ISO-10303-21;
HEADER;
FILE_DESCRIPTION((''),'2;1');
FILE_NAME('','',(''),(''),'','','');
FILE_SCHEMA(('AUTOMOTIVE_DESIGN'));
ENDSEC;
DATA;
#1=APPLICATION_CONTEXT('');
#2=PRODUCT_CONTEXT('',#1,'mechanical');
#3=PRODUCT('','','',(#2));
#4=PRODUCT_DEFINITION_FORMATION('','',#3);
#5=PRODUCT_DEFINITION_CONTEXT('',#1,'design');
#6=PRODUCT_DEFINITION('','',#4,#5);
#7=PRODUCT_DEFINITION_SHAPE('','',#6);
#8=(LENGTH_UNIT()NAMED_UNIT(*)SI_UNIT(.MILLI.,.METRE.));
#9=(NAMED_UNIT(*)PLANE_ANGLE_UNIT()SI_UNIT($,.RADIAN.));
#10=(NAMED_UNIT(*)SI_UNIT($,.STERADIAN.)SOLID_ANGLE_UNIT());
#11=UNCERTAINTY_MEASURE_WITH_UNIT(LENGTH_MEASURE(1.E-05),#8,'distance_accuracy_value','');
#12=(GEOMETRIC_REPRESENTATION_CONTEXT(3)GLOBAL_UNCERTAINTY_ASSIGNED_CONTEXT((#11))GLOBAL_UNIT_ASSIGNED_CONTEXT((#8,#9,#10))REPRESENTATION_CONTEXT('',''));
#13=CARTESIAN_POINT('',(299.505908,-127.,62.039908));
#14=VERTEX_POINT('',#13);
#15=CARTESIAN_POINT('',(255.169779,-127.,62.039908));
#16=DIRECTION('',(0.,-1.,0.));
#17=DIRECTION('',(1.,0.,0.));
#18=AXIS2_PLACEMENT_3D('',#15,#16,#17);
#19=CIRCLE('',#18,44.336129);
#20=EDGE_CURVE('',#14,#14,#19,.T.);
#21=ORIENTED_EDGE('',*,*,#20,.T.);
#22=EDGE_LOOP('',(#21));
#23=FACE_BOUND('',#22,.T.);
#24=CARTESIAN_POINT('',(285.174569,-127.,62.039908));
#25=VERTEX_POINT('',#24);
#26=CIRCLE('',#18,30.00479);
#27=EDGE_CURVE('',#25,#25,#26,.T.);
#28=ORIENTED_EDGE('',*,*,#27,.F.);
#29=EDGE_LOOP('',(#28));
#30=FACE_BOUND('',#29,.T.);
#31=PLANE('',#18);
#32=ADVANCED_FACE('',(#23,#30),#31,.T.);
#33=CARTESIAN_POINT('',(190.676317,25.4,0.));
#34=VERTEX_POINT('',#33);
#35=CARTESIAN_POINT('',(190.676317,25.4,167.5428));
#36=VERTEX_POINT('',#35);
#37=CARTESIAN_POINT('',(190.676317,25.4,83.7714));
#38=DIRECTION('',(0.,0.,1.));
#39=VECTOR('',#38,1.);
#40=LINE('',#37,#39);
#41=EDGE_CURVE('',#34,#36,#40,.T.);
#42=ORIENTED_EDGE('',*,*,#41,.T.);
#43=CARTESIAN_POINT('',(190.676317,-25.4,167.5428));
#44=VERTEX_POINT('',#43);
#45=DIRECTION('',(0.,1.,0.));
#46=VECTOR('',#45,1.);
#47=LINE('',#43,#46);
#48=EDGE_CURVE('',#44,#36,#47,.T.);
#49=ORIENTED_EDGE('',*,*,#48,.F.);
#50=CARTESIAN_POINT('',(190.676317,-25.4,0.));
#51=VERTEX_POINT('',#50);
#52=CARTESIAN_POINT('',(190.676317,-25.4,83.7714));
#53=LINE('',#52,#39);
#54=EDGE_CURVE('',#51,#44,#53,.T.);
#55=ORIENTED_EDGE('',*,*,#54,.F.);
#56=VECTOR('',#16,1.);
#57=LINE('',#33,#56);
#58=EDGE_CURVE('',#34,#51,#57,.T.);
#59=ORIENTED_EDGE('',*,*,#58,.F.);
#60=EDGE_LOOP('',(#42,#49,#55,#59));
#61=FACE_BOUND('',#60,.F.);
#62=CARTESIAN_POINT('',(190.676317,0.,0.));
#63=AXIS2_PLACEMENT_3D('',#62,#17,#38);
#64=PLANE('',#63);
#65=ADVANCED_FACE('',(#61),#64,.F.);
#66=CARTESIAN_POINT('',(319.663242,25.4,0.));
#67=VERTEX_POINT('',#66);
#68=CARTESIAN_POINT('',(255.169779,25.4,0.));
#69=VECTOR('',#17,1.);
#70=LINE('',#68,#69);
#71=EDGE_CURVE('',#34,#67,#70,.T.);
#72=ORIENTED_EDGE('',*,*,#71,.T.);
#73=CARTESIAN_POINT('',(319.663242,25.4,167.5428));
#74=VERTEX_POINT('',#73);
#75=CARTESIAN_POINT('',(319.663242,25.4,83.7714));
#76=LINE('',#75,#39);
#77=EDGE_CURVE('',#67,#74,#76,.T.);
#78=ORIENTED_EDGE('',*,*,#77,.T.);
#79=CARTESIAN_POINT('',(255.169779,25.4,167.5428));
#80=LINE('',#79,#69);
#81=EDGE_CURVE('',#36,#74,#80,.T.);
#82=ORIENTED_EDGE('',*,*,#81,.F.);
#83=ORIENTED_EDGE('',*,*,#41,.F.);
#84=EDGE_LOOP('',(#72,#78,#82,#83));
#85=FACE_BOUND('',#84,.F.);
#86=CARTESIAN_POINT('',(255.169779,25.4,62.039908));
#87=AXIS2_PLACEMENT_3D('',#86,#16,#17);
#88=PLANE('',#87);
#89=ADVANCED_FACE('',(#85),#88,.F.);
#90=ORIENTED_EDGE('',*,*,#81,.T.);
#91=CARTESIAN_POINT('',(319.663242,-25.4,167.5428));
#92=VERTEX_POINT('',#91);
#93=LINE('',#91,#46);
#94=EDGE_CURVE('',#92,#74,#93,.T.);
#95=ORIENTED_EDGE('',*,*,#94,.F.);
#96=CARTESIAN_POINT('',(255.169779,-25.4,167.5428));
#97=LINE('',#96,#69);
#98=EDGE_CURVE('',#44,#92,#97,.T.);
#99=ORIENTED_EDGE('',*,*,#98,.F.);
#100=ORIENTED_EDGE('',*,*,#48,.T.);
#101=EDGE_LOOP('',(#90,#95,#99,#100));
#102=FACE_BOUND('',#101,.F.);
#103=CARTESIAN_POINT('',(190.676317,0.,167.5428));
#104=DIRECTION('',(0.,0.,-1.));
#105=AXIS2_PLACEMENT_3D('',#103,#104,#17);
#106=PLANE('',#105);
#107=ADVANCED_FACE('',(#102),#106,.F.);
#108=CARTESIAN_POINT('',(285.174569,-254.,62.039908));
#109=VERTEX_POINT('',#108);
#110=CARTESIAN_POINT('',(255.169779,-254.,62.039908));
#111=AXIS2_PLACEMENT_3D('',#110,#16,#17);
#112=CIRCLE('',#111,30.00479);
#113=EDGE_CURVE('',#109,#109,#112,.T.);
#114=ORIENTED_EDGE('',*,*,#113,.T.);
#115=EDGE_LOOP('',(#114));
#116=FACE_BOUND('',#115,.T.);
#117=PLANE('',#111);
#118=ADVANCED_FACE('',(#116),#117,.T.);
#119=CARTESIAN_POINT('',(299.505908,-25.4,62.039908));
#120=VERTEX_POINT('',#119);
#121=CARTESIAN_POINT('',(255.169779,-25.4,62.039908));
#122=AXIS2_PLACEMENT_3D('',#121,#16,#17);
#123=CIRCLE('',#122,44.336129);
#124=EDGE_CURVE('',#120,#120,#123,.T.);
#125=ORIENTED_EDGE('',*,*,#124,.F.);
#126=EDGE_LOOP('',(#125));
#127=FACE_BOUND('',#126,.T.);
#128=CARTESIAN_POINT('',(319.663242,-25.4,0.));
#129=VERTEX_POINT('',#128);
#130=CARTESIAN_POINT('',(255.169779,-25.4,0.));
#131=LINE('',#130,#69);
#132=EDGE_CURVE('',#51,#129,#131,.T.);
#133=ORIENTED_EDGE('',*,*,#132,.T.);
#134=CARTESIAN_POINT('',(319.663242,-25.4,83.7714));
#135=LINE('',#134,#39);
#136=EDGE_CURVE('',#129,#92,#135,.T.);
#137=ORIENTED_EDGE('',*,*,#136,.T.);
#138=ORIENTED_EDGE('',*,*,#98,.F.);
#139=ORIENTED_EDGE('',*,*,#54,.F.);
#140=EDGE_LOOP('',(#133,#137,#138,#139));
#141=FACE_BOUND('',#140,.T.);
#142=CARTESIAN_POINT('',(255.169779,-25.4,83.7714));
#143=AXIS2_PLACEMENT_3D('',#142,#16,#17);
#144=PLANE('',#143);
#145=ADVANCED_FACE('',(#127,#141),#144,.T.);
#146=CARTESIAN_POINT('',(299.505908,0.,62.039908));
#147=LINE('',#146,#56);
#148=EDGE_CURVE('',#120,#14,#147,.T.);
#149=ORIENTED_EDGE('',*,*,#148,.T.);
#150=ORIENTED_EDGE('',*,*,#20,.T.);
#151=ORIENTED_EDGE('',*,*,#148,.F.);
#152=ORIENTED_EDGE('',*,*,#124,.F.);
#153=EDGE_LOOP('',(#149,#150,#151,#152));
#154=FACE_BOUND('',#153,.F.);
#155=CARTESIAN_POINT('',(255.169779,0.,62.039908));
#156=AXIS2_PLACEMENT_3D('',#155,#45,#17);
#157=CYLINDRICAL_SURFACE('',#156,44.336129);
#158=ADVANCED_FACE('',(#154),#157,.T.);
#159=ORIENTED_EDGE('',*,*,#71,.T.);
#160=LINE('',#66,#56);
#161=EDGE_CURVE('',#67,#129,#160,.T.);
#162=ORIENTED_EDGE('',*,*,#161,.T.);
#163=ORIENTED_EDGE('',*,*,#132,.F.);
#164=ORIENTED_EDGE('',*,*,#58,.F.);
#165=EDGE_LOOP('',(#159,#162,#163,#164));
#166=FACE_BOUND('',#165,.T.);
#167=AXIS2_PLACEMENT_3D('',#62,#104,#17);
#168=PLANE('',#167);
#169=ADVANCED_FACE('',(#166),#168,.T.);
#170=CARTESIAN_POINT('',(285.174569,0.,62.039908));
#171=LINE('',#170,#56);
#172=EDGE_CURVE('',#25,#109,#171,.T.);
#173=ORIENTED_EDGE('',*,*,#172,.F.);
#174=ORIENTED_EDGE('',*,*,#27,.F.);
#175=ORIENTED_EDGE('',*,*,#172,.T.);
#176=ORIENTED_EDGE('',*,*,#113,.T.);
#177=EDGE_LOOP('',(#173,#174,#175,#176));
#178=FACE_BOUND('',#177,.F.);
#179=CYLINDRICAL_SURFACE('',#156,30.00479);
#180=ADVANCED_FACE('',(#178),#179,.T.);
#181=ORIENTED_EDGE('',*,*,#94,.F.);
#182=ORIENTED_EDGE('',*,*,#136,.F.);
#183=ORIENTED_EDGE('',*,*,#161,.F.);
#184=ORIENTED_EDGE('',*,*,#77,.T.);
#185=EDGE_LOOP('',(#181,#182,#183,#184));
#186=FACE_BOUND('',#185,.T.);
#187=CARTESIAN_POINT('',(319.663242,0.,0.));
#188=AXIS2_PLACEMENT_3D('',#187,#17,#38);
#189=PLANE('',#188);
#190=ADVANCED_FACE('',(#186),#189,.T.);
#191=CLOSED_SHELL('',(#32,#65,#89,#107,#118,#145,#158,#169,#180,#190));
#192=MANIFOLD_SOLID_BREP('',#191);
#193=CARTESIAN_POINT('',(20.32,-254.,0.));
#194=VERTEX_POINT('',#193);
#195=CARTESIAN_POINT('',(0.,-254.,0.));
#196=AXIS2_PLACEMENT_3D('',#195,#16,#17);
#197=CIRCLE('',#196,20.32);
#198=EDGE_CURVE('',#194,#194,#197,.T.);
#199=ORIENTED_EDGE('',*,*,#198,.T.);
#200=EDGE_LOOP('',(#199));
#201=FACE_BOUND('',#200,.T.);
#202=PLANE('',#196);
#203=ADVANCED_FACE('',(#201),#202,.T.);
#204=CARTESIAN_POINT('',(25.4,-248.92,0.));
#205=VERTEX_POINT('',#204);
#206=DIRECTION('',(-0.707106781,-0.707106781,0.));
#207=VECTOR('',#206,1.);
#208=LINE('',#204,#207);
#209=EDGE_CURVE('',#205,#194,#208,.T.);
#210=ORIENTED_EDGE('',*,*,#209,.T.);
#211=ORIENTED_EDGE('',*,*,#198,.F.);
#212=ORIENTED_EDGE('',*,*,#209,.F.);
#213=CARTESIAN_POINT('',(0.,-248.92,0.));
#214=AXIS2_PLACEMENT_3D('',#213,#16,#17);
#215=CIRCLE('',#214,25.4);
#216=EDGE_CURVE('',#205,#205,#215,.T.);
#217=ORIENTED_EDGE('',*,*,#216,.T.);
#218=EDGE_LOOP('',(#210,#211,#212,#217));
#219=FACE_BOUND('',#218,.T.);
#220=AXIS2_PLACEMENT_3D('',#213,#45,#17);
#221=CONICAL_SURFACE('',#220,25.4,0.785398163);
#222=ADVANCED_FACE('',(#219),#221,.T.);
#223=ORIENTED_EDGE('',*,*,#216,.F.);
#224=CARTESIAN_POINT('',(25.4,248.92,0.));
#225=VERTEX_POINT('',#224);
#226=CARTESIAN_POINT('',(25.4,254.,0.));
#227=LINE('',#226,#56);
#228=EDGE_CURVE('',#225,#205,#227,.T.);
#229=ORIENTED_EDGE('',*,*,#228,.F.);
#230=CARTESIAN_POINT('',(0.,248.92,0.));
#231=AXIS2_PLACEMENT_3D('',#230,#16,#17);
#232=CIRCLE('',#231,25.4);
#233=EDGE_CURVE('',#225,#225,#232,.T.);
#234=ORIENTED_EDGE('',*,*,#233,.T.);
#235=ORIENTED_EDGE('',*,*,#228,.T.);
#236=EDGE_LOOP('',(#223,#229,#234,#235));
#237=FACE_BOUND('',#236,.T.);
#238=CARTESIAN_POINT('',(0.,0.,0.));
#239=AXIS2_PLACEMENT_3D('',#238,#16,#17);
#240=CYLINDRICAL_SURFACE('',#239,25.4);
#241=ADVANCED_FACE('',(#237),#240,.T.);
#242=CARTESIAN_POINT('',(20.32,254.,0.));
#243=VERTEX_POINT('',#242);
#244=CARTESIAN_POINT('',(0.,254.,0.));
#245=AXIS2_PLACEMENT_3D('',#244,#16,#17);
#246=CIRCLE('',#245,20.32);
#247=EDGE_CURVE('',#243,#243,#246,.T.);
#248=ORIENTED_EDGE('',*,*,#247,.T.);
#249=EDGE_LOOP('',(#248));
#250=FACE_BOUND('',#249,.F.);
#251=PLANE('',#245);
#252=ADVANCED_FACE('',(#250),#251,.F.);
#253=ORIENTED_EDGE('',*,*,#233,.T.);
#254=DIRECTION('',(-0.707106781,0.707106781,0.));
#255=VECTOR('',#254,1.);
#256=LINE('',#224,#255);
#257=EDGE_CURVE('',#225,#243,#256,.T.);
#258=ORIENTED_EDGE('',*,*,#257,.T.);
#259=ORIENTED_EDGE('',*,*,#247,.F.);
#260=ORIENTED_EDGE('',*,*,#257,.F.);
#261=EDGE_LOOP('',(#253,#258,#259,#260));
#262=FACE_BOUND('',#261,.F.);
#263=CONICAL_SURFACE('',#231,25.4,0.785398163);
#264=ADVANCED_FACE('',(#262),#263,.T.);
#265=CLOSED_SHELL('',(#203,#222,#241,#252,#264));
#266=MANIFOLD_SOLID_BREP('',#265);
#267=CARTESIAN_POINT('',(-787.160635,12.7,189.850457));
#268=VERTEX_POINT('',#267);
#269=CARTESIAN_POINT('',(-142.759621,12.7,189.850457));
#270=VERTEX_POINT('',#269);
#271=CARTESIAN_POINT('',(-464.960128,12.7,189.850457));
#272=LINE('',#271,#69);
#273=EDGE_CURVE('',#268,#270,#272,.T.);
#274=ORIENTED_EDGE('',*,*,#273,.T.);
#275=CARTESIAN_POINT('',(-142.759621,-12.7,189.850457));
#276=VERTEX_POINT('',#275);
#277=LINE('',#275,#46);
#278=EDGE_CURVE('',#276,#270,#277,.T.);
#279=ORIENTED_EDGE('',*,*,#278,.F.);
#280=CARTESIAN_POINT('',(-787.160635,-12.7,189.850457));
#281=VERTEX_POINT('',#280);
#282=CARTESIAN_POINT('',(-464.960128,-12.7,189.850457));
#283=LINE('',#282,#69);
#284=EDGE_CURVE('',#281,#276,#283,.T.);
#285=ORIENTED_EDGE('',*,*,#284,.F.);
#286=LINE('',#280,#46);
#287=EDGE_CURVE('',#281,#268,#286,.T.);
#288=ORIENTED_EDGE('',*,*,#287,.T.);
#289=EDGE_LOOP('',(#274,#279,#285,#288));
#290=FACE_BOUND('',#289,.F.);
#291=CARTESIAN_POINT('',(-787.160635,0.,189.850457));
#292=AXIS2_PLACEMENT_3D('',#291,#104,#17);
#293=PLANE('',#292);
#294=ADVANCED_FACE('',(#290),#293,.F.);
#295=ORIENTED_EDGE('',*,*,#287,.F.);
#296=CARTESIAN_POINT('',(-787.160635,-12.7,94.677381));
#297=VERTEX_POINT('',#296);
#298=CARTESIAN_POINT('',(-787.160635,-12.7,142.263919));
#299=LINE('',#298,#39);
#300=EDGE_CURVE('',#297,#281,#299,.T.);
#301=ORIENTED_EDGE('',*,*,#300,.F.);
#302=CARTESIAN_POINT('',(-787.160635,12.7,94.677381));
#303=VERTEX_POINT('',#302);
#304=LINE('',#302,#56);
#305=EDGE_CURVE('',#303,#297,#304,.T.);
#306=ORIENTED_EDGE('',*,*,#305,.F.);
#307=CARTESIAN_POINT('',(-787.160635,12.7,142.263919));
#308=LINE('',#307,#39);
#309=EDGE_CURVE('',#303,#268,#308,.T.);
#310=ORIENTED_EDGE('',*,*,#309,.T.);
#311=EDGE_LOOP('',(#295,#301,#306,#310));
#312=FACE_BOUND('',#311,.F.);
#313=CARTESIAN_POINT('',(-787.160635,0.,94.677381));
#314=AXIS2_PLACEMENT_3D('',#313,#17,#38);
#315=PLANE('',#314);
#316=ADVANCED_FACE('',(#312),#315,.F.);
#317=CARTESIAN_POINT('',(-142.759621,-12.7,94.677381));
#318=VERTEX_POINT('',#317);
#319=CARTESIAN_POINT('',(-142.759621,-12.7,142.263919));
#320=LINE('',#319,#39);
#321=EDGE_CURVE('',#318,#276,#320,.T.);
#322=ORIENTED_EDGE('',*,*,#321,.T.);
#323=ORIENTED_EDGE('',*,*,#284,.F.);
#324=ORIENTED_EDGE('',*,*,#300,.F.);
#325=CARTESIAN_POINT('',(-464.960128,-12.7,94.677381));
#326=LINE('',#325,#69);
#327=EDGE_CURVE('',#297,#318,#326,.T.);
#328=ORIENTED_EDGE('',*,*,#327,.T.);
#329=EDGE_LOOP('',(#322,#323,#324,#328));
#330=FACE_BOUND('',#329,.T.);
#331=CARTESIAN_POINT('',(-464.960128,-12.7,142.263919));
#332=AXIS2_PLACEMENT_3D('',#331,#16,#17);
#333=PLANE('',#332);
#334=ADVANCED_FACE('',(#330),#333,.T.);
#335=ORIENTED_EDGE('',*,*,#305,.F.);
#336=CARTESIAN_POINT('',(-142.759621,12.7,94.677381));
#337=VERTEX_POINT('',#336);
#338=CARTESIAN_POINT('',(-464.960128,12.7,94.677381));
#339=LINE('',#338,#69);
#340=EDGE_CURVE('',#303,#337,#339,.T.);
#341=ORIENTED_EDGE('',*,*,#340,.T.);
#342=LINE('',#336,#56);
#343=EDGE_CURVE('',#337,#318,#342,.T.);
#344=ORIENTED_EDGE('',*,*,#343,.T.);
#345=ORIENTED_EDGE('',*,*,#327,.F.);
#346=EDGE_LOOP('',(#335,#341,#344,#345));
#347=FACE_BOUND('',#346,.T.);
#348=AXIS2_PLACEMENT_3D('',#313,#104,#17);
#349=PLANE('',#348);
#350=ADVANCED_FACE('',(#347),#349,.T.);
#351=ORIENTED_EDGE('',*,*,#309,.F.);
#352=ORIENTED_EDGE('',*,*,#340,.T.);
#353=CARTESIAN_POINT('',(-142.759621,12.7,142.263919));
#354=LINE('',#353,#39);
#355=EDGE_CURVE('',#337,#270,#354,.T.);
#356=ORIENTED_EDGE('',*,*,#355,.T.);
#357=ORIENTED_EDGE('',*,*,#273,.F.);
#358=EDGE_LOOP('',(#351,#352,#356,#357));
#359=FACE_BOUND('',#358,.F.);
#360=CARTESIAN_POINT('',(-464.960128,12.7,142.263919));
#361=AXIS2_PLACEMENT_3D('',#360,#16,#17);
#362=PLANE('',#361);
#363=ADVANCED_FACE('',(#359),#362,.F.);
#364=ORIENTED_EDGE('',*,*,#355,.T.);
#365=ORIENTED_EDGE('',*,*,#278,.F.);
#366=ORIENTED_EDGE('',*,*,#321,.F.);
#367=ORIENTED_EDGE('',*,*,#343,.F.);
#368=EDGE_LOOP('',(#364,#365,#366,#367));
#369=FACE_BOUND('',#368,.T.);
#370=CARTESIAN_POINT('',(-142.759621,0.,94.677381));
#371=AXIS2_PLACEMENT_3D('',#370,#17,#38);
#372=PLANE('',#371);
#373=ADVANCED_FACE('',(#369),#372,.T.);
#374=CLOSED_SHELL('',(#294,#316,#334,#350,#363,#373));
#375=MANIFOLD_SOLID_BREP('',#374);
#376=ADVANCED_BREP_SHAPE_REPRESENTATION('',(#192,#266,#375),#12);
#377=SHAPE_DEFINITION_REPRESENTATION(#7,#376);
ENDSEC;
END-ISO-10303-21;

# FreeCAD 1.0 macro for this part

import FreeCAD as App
import Part
import Sketcher

V = App.Vector
Q = App.Units.Quantity


def edges_at(feature, points):
    """Names of the edges that pass closest to the given points."""
    edges = feature.Shape.Edges
    near = lambda p: min(range(len(edges)), key=lambda i: edges[i].distToShape(Part.Vertex(*p))[0])
    return sorted({f"Edge{near(p) + 1}" for p in points})


def add_polygon(sketch, points):
    """Adds a closed chain of lines whose ends are joined by coincident constraints."""
    first, n = sketch.GeometryCount, len(points)
    for a, b in zip(points, points[1:] + points[:1]):
        sketch.addGeometry(Part.LineSegment(App.Vector(*a, 0), App.Vector(*b, 0)), False)
    for i in range(n):
        sketch.addConstraint(Sketcher.Constraint("Coincident", first + i, 2, first + (i + 1) % n, 1))

doc = App.newDocument("Part")
params = doc.addObject("Spreadsheet::Sheet", "Params")
for row, (alias, value) in enumerate([
    ("sketch1_diameter", "2 in"),
    ("pad1_length", "20 in"),
    ("chamfer_size", "0.2 in"),
    ("pad2_length", "2 in"),
    ("pad3_length", "5 in"),
    ("pad3_length2", "1 in"),
    ("pad4_length", "10 in"),
    ("pad4_length2", "1 in"),
    ("pad5_length", "1 in"),
], start=1):
    params.set(f"A{row}", alias)
    params.set(f"B{row}", "=" + value)
    params.setAlias(f"B{row}", alias)

body = doc.addObject("PartDesign::Body", "Body")

# Sketch on XZ plane
sketch1 = doc.addObject("Sketcher::SketchObject", "Sketch")
body.addObject(sketch1)
sketch1.AttachmentSupport = (doc.XZ_Plane, [""])
sketch1.MapMode = "FlatFace"
sketch1.addGeometry(Part.Circle(V(0, 0, 0), V(0, 0, 1), 25), False)
sketch1.addConstraint([
    Sketcher.Constraint("Coincident", 0, 3, -1, 1),
    Sketcher.Constraint("Diameter", 0, Q("2 in")),
])
sketch1.setExpression("Constraints[1]", "Params.sketch1_diameter")
pad1 = doc.addObject("PartDesign::Pad", "Pad")
body.addObject(pad1)
pad1.Profile = sketch1
pad1.setExpression("Length", "Params.pad1_length")
pad1.Midplane = True
doc.recompute()

chamfer = doc.addObject("PartDesign::Chamfer", "Chamfer")
body.addObject(chamfer)
chamfer.Base = (pad1, edges_at(pad1, [(-25.4, 254, 0), (-25.4, -254, 0)]))
chamfer.setExpression("Size", "Params.chamfer_size")
body2 = doc.addObject("PartDesign::Body", "Body001")

# Sketch on XZ plane
sketch2 = doc.addObject("Sketcher::SketchObject", "Sketch001")
body2.addObject(sketch2)
sketch2.AttachmentSupport = (doc.getObject("XZ_Plane001"), [""])
sketch2.MapMode = "FlatFace"
add_polygon(sketch2, [(191, 168), (191, 0), (320, 0), (320, 168)])  # lines 0-3
sketch2.addGeometry(Part.Circle(V(255, 62, 0), V(0, 0, 1), 44), False)  # 4
sketch2.addConstraint([
    Sketcher.Constraint("Vertical", 0),
    Sketcher.Constraint("Horizontal", 1),
    Sketcher.Constraint("Vertical", 2),
    Sketcher.Constraint("Horizontal", 3),
    Sketcher.Constraint("PointOnObject", 0, 2, -1),
    Sketcher.Constraint("Diameter", 4, Q("88.672258 mm")),
    Sketcher.Constraint("DistanceY", 0, 2, 0, 1, Q("167.5428 mm")),
    Sketcher.Constraint("DistanceX", 1, 1, 1, 2, Q("128.986925 mm")),
    Sketcher.Constraint("DistanceX", -1, 1, 4, 3, Q("255.169779 mm")),
    Sketcher.Constraint("DistanceX", -1, 1, 1, 2, Q("319.663242 mm")),
    Sketcher.Constraint("DistanceY", -1, 1, 4, 3, Q("62.039908 mm")),
])
pad2 = doc.addObject("PartDesign::Pad", "Pad001")
body2.addObject(pad2)
pad2.Profile = sketch2
pad2.setExpression("Length", "Params.pad2_length")
pad2.Midplane = True

# Sketch on XZ plane
sketch3 = doc.addObject("Sketcher::SketchObject", "Sketch002")
body2.addObject(sketch3)
sketch3.AttachmentSupport = (doc.getObject("XZ_Plane001"), [""])
sketch3.MapMode = "FlatFace"
sketch3.addGeometry([
    Part.Circle(V(255, 62, 0), V(0, 0, 1), 44),
    Part.Circle(V(255, 62, 0), V(0, 0, 1), 30),
], False)
sketch3.addConstraint([
    Sketcher.Constraint("Coincident", 1, 3, 0, 3),
    Sketcher.Constraint("Diameter", 0, Q("88.672258 mm")),
    Sketcher.Constraint("Diameter", 1, Q("60.00958 mm")),
    Sketcher.Constraint("DistanceX", -1, 1, 0, 3, Q("255.169779 mm")),
    Sketcher.Constraint("DistanceY", -1, 1, 0, 3, Q("62.039908 mm")),
])
pad3 = doc.addObject("PartDesign::Pad", "Pad002")
body2.addObject(pad3)
pad3.Profile = sketch3
pad3.Type = "TwoLengths"
pad3.setExpression("Length", "Params.pad3_length")
pad3.setExpression("Length2", "Params.pad3_length2")

# Sketch on XZ plane
sketch4 = doc.addObject("Sketcher::SketchObject", "Sketch003")
body2.addObject(sketch4)
sketch4.AttachmentSupport = (doc.getObject("XZ_Plane001"), [""])
sketch4.MapMode = "FlatFace"
sketch4.addGeometry(Part.Circle(V(255, 62, 0), V(0, 0, 1), 30), False)
sketch4.addConstraint([
    Sketcher.Constraint("Diameter", 0, Q("60.00958 mm")),
    Sketcher.Constraint("DistanceX", -1, 1, 0, 3, Q("255.169779 mm")),
    Sketcher.Constraint("DistanceY", -1, 1, 0, 3, Q("62.039908 mm")),
])
pad4 = doc.addObject("PartDesign::Pad", "Pad003")
body2.addObject(pad4)
pad4.Profile = sketch4
pad4.Type = "TwoLengths"
pad4.setExpression("Length", "Params.pad4_length")
pad4.setExpression("Length2", "Params.pad4_length2")
body3 = doc.addObject("PartDesign::Body", "Body002")

# Sketch on XZ plane
sketch5 = doc.addObject("Sketcher::SketchObject", "Sketch004")
body3.addObject(sketch5)
sketch5.AttachmentSupport = (doc.getObject("XZ_Plane002"), [""])
sketch5.MapMode = "FlatFace"
add_polygon(sketch5, [(-787, 190), (-787, 95), (-143, 95), (-143, 190)])  # lines 0-3
sketch5.addConstraint([
    Sketcher.Constraint("Vertical", 0),
    Sketcher.Constraint("Horizontal", 1),
    Sketcher.Constraint("Vertical", 2),
    Sketcher.Constraint("Horizontal", 3),
    Sketcher.Constraint("DistanceX", 1, 1, 1, 2, Q("644.401014 mm")),
    Sketcher.Constraint("DistanceY", 0, 2, 0, 1, Q("95.173076 mm")),
    Sketcher.Constraint("DistanceY", -1, 1, 0, 2, Q("94.677381 mm")),
    Sketcher.Constraint("DistanceX", 1, 2, -1, 1, Q("142.759621 mm")),
])
pad5 = doc.addObject("PartDesign::Pad", "Pad004")
body3.addObject(pad5)
pad5.Profile = sketch5
pad5.setExpression("Length", "Params.pad5_length")
pad5.Midplane = True

doc.recompute()
